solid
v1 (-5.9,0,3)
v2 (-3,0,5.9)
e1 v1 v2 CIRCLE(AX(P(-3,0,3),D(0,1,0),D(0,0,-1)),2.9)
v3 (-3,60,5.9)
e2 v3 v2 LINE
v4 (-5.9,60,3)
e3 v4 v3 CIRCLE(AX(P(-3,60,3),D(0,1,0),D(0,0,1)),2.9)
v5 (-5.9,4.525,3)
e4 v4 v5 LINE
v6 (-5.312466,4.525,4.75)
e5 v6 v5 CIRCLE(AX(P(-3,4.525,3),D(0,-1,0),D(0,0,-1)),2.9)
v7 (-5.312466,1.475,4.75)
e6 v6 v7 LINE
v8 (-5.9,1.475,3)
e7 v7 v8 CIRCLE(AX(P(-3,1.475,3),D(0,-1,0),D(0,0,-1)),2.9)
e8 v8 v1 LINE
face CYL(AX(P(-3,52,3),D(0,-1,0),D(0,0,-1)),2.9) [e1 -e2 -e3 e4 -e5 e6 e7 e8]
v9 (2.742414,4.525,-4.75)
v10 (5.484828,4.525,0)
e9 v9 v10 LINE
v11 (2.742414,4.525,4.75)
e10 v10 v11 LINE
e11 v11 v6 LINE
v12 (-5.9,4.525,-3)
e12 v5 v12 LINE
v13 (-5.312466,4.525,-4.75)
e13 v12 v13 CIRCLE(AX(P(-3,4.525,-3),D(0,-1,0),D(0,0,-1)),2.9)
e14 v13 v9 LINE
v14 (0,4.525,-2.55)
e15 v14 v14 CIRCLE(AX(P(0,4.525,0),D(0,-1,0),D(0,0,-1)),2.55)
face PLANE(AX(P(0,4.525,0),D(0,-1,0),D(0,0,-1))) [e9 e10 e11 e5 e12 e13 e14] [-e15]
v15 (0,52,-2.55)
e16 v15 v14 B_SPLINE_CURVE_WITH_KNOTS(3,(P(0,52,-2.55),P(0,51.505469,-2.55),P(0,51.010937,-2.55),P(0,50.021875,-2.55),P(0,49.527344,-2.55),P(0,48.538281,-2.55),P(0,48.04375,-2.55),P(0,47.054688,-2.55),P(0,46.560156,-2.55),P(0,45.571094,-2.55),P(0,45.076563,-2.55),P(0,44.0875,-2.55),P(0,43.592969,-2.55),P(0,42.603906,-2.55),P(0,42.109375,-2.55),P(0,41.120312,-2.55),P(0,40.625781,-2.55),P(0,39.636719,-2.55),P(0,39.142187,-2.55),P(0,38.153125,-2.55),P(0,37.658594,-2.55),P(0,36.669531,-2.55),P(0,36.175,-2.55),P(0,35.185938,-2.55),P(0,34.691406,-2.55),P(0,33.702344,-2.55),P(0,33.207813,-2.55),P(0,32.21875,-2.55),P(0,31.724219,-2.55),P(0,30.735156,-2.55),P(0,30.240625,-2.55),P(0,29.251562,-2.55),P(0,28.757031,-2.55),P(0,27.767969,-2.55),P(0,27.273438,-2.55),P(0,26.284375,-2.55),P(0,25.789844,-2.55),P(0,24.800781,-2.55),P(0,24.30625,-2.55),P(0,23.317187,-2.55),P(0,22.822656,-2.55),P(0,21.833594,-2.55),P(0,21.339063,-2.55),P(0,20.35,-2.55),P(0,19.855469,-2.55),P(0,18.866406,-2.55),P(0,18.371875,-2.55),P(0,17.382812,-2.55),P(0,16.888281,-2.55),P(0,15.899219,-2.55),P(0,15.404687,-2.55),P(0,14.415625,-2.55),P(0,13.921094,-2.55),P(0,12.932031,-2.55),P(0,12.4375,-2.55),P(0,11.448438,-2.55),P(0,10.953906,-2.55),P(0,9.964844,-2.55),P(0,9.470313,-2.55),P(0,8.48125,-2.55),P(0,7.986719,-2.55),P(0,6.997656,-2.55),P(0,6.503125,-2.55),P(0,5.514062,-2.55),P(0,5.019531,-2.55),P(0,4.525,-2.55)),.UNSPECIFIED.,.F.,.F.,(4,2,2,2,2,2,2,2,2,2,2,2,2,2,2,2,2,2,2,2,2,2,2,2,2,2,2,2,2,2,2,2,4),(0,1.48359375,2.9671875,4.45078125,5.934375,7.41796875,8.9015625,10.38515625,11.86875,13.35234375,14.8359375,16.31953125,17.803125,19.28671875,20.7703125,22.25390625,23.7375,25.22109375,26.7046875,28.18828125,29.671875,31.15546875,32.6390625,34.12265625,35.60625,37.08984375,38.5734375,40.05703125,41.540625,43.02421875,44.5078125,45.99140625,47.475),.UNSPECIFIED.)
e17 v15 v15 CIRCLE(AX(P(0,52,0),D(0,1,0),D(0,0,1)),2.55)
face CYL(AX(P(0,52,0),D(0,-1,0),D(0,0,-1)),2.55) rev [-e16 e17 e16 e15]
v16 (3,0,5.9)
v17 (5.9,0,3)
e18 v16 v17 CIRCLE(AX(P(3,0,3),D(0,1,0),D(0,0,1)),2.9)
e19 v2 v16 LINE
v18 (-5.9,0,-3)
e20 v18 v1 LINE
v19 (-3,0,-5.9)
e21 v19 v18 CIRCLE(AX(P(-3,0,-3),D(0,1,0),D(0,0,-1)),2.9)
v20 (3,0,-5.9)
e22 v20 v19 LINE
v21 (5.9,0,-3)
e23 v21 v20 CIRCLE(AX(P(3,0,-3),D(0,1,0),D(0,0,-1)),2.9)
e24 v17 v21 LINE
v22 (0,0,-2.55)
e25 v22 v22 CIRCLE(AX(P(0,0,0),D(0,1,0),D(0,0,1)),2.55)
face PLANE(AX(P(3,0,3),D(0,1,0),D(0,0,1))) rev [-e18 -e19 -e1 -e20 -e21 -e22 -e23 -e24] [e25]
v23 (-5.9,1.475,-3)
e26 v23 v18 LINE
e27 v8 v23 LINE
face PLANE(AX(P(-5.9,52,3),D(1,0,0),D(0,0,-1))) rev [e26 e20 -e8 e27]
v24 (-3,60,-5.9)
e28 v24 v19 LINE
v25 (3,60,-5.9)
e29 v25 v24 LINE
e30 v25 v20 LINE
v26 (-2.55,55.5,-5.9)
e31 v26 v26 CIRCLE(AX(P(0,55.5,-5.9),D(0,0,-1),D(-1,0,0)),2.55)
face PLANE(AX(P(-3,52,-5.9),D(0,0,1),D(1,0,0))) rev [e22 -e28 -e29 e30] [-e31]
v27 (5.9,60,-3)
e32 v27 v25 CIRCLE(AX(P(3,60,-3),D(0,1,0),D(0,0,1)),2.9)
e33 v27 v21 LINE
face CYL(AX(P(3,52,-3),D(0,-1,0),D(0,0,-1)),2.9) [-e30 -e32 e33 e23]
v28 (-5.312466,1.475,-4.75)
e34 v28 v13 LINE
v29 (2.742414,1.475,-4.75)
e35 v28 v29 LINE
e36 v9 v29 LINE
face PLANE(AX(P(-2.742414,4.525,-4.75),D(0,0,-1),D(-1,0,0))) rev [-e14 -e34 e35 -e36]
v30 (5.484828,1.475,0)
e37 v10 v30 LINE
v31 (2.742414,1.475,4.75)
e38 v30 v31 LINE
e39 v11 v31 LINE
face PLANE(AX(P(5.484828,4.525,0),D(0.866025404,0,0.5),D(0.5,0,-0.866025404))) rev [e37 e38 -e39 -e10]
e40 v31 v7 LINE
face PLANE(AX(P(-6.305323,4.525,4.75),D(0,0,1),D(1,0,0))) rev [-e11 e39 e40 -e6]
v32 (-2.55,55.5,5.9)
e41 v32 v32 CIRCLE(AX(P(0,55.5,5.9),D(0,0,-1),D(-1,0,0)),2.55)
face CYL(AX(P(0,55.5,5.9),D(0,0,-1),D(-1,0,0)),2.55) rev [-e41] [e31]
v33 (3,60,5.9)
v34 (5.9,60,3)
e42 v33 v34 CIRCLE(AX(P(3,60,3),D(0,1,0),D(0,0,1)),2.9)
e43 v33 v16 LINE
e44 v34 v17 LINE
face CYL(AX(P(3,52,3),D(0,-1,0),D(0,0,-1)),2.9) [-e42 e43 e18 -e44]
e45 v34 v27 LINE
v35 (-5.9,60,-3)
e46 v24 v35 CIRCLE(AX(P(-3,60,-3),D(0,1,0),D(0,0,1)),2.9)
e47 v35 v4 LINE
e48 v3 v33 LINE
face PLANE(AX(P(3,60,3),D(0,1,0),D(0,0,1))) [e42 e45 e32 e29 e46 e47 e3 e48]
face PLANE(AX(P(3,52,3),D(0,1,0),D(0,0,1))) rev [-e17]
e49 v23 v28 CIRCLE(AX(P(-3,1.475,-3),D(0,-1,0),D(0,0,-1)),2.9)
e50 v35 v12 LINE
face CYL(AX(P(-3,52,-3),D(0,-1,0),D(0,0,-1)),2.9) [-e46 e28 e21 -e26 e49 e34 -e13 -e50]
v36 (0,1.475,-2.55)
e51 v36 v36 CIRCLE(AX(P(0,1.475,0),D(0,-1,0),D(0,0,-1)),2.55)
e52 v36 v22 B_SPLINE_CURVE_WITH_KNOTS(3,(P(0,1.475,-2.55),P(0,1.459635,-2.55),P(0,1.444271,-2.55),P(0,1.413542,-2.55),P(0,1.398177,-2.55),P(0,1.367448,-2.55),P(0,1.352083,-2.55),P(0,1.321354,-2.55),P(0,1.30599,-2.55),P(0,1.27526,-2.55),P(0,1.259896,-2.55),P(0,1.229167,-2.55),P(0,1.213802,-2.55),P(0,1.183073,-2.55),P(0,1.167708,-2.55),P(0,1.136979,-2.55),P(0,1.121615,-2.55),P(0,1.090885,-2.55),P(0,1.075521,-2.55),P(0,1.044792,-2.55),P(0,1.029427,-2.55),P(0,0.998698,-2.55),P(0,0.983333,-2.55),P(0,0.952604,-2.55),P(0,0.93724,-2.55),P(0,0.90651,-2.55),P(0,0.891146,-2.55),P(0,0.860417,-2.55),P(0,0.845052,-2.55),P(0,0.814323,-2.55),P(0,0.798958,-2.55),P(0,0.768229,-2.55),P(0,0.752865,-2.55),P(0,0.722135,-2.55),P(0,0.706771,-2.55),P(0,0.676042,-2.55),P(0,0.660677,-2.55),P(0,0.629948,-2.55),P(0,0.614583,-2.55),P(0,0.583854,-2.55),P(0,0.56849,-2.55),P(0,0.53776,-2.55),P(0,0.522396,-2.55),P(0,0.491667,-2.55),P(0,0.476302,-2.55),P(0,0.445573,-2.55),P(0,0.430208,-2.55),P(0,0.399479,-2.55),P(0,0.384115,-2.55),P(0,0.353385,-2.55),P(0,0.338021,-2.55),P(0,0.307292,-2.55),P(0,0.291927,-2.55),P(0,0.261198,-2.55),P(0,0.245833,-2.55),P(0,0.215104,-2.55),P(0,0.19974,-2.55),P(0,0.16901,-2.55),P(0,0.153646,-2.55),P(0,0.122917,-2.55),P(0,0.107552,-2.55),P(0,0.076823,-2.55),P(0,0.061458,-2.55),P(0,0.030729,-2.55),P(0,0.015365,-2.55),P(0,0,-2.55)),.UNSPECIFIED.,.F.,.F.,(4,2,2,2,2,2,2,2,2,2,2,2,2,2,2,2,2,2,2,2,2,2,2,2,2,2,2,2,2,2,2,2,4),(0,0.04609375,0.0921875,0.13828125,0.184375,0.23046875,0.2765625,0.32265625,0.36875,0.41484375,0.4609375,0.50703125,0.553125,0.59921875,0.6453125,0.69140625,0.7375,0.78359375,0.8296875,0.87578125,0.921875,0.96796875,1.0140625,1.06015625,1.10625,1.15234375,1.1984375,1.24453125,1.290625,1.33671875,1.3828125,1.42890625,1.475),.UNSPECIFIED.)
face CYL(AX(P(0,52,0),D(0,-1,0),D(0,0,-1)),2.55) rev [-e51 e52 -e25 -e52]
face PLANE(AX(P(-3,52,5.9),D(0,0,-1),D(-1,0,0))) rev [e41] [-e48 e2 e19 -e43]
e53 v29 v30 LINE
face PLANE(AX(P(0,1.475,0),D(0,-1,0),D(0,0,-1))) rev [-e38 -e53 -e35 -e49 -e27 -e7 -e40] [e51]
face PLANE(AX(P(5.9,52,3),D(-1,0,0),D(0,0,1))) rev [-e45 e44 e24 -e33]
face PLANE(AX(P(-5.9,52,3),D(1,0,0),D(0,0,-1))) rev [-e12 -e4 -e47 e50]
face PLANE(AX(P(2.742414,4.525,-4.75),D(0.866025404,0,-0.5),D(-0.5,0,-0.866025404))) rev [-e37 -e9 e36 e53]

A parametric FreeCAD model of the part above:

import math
import FreeCAD as App
import Part
import Sketcher

V = App.Vector
Q = App.Units.Quantity

doc = App.newDocument("Part")
params = doc.addObject("Spreadsheet::Sheet", "Params")
for row, (alias, value) in enumerate([
    ("sketch1_diameter", "5.1 mm"),
    ("sketch1_radius", "2.9 mm"),
    ("sketch1_width", "6 mm"),
    ("pad1_length", "52 mm"),
    ("sketch2_radius", "2.9 mm"),
    ("sketch2_width", "6 mm"),
    ("pad2_length", "8 mm"),
    ("sketch3_height", "9.5 mm"),
    ("pocket1_length", "3.05 mm"),
    ("sketch4_diameter", "5.1 mm"),
], start=1):
    params.set(f"A{row}", alias)
    params.set(f"B{row}", "=" + value)
    params.setAlias(f"B{row}", alias)

body = doc.addObject("PartDesign::Body", "Body")

# Sketch on XZ plane
sketch1 = body.newObject("Sketcher::SketchObject", "Sketch")
sketch1.AttachmentSupport = (doc.getObject("XZ_Plane"), [""])
sketch1.MapMode = "FlatFace"
sketch1.addGeometry(Part.LineSegment(V(-3, 5.9, 0), V(3, 5.9, 0)), False)
sketch1.addGeometry(Part.ArcOfCircle(Part.Circle(V(3, 3, 0), V(0, 0, 1), 2.9), math.radians(0), math.radians(90)), False)
sketch1.addGeometry(Part.LineSegment(V(5.9, 3, 0), V(5.9, -3, 0)), False)
sketch1.addGeometry(Part.ArcOfCircle(Part.Circle(V(3, -3, 0), V(0, 0, 1), 2.9), math.radians(-90), math.radians(0)), False)
sketch1.addGeometry(Part.LineSegment(V(3, -5.9, 0), V(-3, -5.9, 0)), False)
sketch1.addGeometry(Part.ArcOfCircle(Part.Circle(V(-3, -3, 0), V(0, 0, 1), 2.9), math.radians(-180), math.radians(-90)), False)
sketch1.addGeometry(Part.LineSegment(V(-5.9, -3, 0), V(-5.9, 3, 0)), False)
sketch1.addGeometry(Part.ArcOfCircle(Part.Circle(V(-3, 3, 0), V(0, 0, 1), 2.9), math.radians(90), math.radians(180)), False)
sketch1.addGeometry(Part.Circle(V(0, 0, 0), V(0, 0, 1), 2.5), False)
sketch1.addConstraint(Sketcher.Constraint("Tangent", 0, 2, 1, 2))
sketch1.addConstraint(Sketcher.Constraint("Tangent", 1, 1, 2, 1))
sketch1.addConstraint(Sketcher.Constraint("Tangent", 2, 2, 3, 2))
sketch1.addConstraint(Sketcher.Constraint("Tangent", 3, 1, 4, 1))
sketch1.addConstraint(Sketcher.Constraint("Tangent", 4, 2, 5, 2))
sketch1.addConstraint(Sketcher.Constraint("Tangent", 5, 1, 6, 1))
sketch1.addConstraint(Sketcher.Constraint("Tangent", 6, 2, 7, 2))
sketch1.addConstraint(Sketcher.Constraint("Tangent", 7, 1, 0, 1))
sketch1.addConstraint(Sketcher.Constraint("Horizontal", 0))
sketch1.addConstraint(Sketcher.Constraint("Vertical", 2))
sketch1.addConstraint(Sketcher.Constraint("Horizontal", 4))
sketch1.addConstraint(Sketcher.Constraint("Vertical", 6))
sketch1.addConstraint(Sketcher.Constraint("Coincident", 8, 3, -1, 1))
sketch1.addConstraint(Sketcher.Constraint("Equal", 1, 3))
sketch1.addConstraint(Sketcher.Constraint("Equal", 3, 5))
sketch1.addConstraint(Sketcher.Constraint("Equal", 5, 7))
sketch1.addConstraint(Sketcher.Constraint("Symmetric", 1, 3, 5, 3, -1, 1))
sketch1.addConstraint(Sketcher.Constraint("Equal", 4, 2))
sketch1.addConstraint(Sketcher.Constraint("Diameter", 8, 5.1))
sketch1.addConstraint(Sketcher.Constraint("Radius", 1, 2.9))
sketch1.addConstraint(Sketcher.Constraint("DistanceX", 0, 1, 0, 2, 6.0))
sketch1.setExpression("Constraints[18]", "Params.sketch1_diameter")
sketch1.setExpression("Constraints[19]", "Params.sketch1_radius")
sketch1.setExpression("Constraints[20]", "Params.sketch1_width")
pad1 = body.newObject("PartDesign::Pad", "Pad")
pad1.Profile = sketch1
pad1.setExpression("Length", "Params.pad1_length")
pad1.Reversed = True

# Sketch on XZ plane
sketch2 = body.newObject("Sketcher::SketchObject", "Sketch001")
sketch2.AttachmentSupport = (doc.getObject("XZ_Plane"), [""])
sketch2.MapMode = "FlatFace"
sketch2.AttachmentOffset = App.Placement(V(0, 0, -52), App.Rotation())
sketch2.addGeometry(Part.LineSegment(V(5.9, 3, 0), V(5.9, -3, 0)), False)
sketch2.addGeometry(Part.ArcOfCircle(Part.Circle(V(3, -3, 0), V(0, 0, 1), 2.9), math.radians(-90), math.radians(0)), False)
sketch2.addGeometry(Part.LineSegment(V(3, -5.9, 0), V(-3, -5.9, 0)), False)
sketch2.addGeometry(Part.ArcOfCircle(Part.Circle(V(-3, -3, 0), V(0, 0, 1), 2.9), math.radians(-180), math.radians(-90)), False)
sketch2.addGeometry(Part.LineSegment(V(-5.9, -3, 0), V(-5.9, 3, 0)), False)
sketch2.addGeometry(Part.ArcOfCircle(Part.Circle(V(-3, 3, 0), V(0, 0, 1), 2.9), math.radians(90), math.radians(180)), False)
sketch2.addGeometry(Part.LineSegment(V(-3, 5.9, 0), V(3, 5.9, 0)), False)
sketch2.addGeometry(Part.ArcOfCircle(Part.Circle(V(3, 3, 0), V(0, 0, 1), 2.9), math.radians(0), math.radians(90)), False)
sketch2.addConstraint(Sketcher.Constraint("Tangent", 0, 2, 1, 2))
sketch2.addConstraint(Sketcher.Constraint("Tangent", 1, 1, 2, 1))
sketch2.addConstraint(Sketcher.Constraint("Tangent", 2, 2, 3, 2))
sketch2.addConstraint(Sketcher.Constraint("Tangent", 3, 1, 4, 1))
sketch2.addConstraint(Sketcher.Constraint("Tangent", 4, 2, 5, 2))
sketch2.addConstraint(Sketcher.Constraint("Tangent", 5, 1, 6, 1))
sketch2.addConstraint(Sketcher.Constraint("Tangent", 6, 2, 7, 2))
sketch2.addConstraint(Sketcher.Constraint("Tangent", 7, 1, 0, 1))
sketch2.addConstraint(Sketcher.Constraint("Vertical", 0))
sketch2.addConstraint(Sketcher.Constraint("Horizontal", 2))
sketch2.addConstraint(Sketcher.Constraint("Vertical", 4))
sketch2.addConstraint(Sketcher.Constraint("Horizontal", 6))
sketch2.addConstraint(Sketcher.Constraint("Equal", 1, 3))
sketch2.addConstraint(Sketcher.Constraint("Equal", 3, 5))
sketch2.addConstraint(Sketcher.Constraint("Equal", 5, 7))
sketch2.addConstraint(Sketcher.Constraint("Symmetric", 1, 3, 5, 3, -1, 1))
sketch2.addConstraint(Sketcher.Constraint("Equal", 6, 0))
sketch2.addConstraint(Sketcher.Constraint("Radius", 1, 2.9))
sketch2.addConstraint(Sketcher.Constraint("DistanceX", 2, 2, 2, 1, 6.0))
sketch2.setExpression("Constraints[17]", "Params.sketch2_radius")
sketch2.setExpression("Constraints[18]", "Params.sketch2_width")
pad2 = body.newObject("PartDesign::Pad", "Pad001")
pad2.Profile = sketch2
pad2.setExpression("Length", "Params.pad2_length")
pad2.Reversed = True

# Sketch on XZ plane
sketch3 = body.newObject("Sketcher::SketchObject", "Sketch002")
sketch3.AttachmentSupport = (doc.getObject("XZ_Plane"), [""])
sketch3.MapMode = "FlatFace"
sketch3.AttachmentOffset = App.Placement(V(0, 0, -3), App.Rotation())
sketch3.addGeometry(Part.LineSegment(V(-6, -5, 0), V(3, -5, 0)), False)
sketch3.addGeometry(Part.LineSegment(V(3, -5, 0), V(5, 0, 0)), False)
sketch3.addGeometry(Part.LineSegment(V(5, 0, 0), V(3, 5, 0)), False)
sketch3.addGeometry(Part.LineSegment(V(3, 5, 0), V(-6, 5, 0)), False)
sketch3.addGeometry(Part.LineSegment(V(-6, 5, 0), V(-6, -5, 0)), False)
sketch3.addConstraint(Sketcher.Constraint("Coincident", 0, 2, 1, 1))
sketch3.addConstraint(Sketcher.Constraint("Coincident", 1, 2, 2, 1))
sketch3.addConstraint(Sketcher.Constraint("Coincident", 2, 2, 3, 1))
sketch3.addConstraint(Sketcher.Constraint("Coincident", 3, 2, 4, 1))
sketch3.addConstraint(Sketcher.Constraint("Coincident", 4, 2, 0, 1))
sketch3.addConstraint(Sketcher.Constraint("Horizontal", 0))
sketch3.addConstraint(Sketcher.Constraint("Horizontal", 3))
sketch3.addConstraint(Sketcher.Constraint("Vertical", 4))
sketch3.addConstraint(Sketcher.Constraint("Symmetric", 0, 2, 2, 2, -1))
sketch3.addConstraint(Sketcher.Constraint("PointOnObject", 1, 2, -1))
sketch3.addConstraint(Sketcher.Constraint("Angle", 1, Q("60 deg")))
sketch3.addConstraint(Sketcher.Constraint("DistanceY", 4, 2, 4, 1, 9.5))
sketch3.addConstraint(Sketcher.Constraint("DistanceX", 0, 1, 0, 2, 9.047737))
sketch3.addConstraint(Sketcher.Constraint("DistanceX", -1, 1, 0, 2, 2.742414))
sketch3.setExpression("Constraints[11]", "Params.sketch3_height")
pocket1 = body.newObject("PartDesign::Pocket", "Pocket")
pocket1.Profile = sketch3
pocket1.setExpression("Length", "Params.pocket1_length")
pocket1.Midplane = True

# Sketch on XY plane
sketch4 = body.newObject("Sketcher::SketchObject", "Sketch003")
sketch4.AttachmentSupport = (doc.getObject("XY_Plane"), [""])
sketch4.MapMode = "FlatFace"
sketch4.AttachmentOffset = App.Placement(V(0, 0, -5.9), App.Rotation())
sketch4.addGeometry(Part.Circle(V(0, 55.5, 0), V(0, 0, 1), 2.5), False)
sketch4.addConstraint(Sketcher.Constraint("PointOnObject", 0, 3, -2))
sketch4.addConstraint(Sketcher.Constraint("Diameter", 0, 5.1))
sketch4.addConstraint(Sketcher.Constraint("DistanceY", -1, 1, 0, 3, 55.5))
sketch4.setExpression("Constraints[1]", "Params.sketch4_diameter")
pocket2 = body.newObject("PartDesign::Pocket", "Pocket001")
pocket2.Profile = sketch4
pocket2.Type = "ThroughAll"
pocket2.Reversed = True

doc.recompute()
